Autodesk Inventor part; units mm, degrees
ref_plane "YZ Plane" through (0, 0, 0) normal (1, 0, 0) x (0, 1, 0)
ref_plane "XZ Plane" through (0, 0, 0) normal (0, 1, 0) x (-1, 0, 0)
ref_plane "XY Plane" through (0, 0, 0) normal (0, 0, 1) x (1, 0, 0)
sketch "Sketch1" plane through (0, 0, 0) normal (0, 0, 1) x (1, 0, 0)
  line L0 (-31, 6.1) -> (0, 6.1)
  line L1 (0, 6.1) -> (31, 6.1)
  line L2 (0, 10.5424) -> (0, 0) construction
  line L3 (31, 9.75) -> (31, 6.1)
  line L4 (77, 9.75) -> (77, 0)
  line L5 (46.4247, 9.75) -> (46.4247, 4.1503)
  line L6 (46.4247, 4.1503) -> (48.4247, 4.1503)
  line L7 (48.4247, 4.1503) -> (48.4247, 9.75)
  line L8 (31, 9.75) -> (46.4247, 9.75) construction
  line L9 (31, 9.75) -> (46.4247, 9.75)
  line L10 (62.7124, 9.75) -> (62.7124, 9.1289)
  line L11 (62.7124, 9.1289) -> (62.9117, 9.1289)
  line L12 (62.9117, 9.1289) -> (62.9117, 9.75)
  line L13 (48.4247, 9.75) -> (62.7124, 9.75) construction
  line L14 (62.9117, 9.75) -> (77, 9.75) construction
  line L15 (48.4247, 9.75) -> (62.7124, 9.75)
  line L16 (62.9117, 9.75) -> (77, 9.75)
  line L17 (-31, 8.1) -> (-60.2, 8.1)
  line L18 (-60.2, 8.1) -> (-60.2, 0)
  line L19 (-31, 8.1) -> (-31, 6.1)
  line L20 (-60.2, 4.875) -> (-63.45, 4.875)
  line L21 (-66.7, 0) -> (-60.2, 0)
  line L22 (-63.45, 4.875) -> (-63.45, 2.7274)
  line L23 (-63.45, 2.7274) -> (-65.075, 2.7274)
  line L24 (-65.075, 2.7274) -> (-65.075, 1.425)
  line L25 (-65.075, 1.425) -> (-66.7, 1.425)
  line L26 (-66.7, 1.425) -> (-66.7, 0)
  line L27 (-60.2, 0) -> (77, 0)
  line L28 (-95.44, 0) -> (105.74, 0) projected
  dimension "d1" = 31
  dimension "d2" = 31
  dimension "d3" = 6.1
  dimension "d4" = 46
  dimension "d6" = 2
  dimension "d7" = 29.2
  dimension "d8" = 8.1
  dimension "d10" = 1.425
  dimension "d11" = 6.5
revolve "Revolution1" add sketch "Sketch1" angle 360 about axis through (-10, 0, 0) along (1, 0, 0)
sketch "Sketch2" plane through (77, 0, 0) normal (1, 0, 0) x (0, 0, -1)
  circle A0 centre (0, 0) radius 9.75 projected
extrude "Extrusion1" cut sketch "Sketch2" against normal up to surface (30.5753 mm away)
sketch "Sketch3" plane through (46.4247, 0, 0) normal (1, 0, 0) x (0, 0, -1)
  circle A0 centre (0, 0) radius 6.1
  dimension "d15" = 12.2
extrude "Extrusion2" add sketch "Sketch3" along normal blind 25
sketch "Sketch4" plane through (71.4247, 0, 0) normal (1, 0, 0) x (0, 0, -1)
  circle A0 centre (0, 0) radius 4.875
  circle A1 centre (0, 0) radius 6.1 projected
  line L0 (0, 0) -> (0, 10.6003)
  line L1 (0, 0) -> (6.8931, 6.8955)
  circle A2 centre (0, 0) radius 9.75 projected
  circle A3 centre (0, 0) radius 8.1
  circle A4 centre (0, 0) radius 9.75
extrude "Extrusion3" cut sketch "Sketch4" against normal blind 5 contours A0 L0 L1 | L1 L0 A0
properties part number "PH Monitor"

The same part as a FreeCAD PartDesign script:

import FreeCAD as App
import Part
import Sketcher

V = App.Vector


def add_polygon(sketch, points):
    """Adds a closed chain of lines whose ends are joined by coincident constraints."""
    first, n = sketch.GeometryCount, len(points)
    for a, b in zip(points, points[1:] + points[:1]):
        sketch.addGeometry(Part.LineSegment(App.Vector(*a, 0), App.Vector(*b, 0)), False)
    for i in range(n):
        sketch.addConstraint(Sketcher.Constraint("Coincident", first + i, 2, first + (i + 1) % n, 1))

doc = App.newDocument("Part")
body = doc.addObject("PartDesign::Body", "Body")

# Sketch on XY plane
sketch1 = body.newObject("Sketcher::SketchObject", "Sketch")
sketch1.AttachmentSupport = (doc.getObject("XY_Plane"), [""])
sketch1.MapMode = "FlatFace"
add_polygon(sketch1, [(-31, 6.1), (-31, 8.1), (-60.2, 8.1), (-60.2, 4.88), (-63.45, 4.88), (-63.45, 2.73), (-65.08, 2.73), (-65.08, 1.43), (-66.7, 1.43), (-66.7, 0), (77, 0), (77, 9.75), (62.91, 9.75), (62.91, 9.13), (62.71, 9.13), (62.71, 9.75), (48.42, 9.75), (48.42, 4.15), (46.42, 4.15), (46.42, 9.75), (31, 9.75), (31, 6.1)])  # lines 0-21
sketch1.addConstraint([
    Sketcher.Constraint("Vertical", 0),
    Sketcher.Constraint("Horizontal", 1),
    Sketcher.Constraint("Vertical", 2),
    Sketcher.Constraint("Horizontal", 3),
    Sketcher.Constraint("Vertical", 4),
    Sketcher.Constraint("Horizontal", 5),
    Sketcher.Constraint("Vertical", 6),
    Sketcher.Constraint("Horizontal", 7),
    Sketcher.Constraint("Vertical", 8),
    Sketcher.Constraint("Horizontal", 9),
    Sketcher.Constraint("Vertical", 10),
    Sketcher.Constraint("Horizontal", 11),
    Sketcher.Constraint("Vertical", 12),
    Sketcher.Constraint("Horizontal", 13),
    Sketcher.Constraint("Vertical", 14),
    Sketcher.Constraint("Horizontal", 15),
    Sketcher.Constraint("Vertical", 16),
    Sketcher.Constraint("Horizontal", 17),
    Sketcher.Constraint("Vertical", 18),
    Sketcher.Constraint("Horizontal", 19),
    Sketcher.Constraint("Vertical", 20),
    Sketcher.Constraint("Horizontal", 21),
    Sketcher.Constraint("PointOnObject", 8, 2, -1),
    Sketcher.Constraint("Horizontal", 11, 2, 14, 2),
    Sketcher.Constraint("Horizontal", 15, 2, 18, 2),
    Sketcher.Constraint("Equal", 5, 7),
    Sketcher.Constraint("Equal", 17, 0),
    Sketcher.Constraint("DistanceX", 17, 2, 17, 1, 2.0),
    Sketcher.Constraint("DistanceX", 1, 2, 1, 1, 29.2),
    Sketcher.Constraint("DistanceX", 0, 2, -1, 1, 31.0),
    Sketcher.Constraint("DistanceX", -1, 1, 19, 2, 31.0),
    Sketcher.Constraint("DistanceY", -1, 1, 0, 2, 8.1),
    Sketcher.Constraint("DistanceX", 7, 2, 2, 2, 6.5),
    Sketcher.Constraint("DistanceY", 8, 2, 8, 1, 1.425),
    Sketcher.Constraint("DistanceX", 9, 1, 9, 2, 143.7),
    Sketcher.Constraint("DistanceX", 3, 2, 3, 1, 3.25),
    Sketcher.Constraint("DistanceY", 10, 1, 10, 2, 9.75),
    Sketcher.Constraint("DistanceY", 2, 2, 2, 1, 3.225),
    Sketcher.Constraint("DistanceY", 12, 2, 12, 1, 0.621),
    Sketcher.Constraint("DistanceX", 11, 2, 11, 1, 14.0883),
    Sketcher.Constraint("DistanceX", 13, 2, 13, 1, 0.1993),
    Sketcher.Constraint("DistanceX", 15, 2, 15, 1, 14.2877),
    Sketcher.Constraint("DistanceY", 4, 2, 4, 1, 2.1476),
    Sketcher.Constraint("DistanceY", 16, 2, 16, 1, 5.5997),
])
revolution = body.newObject("PartDesign::Revolution", "Revolution")
revolution.Profile = sketch1
revolution.ReferenceAxis = (sketch1, ["H_Axis"])
revolution.Angle = 360

# Sketch on YZ plane
sketch2 = body.newObject("Sketcher::SketchObject", "Sketch001")
sketch2.AttachmentSupport = (doc.getObject("YZ_Plane"), [""])
sketch2.MapMode = "FlatFace"
sketch2.AttachmentOffset = App.Placement(V(0, 0, 77), App.Rotation())
sketch2.addGeometry(Part.Circle(V(0, 0, 0), V(0, 0, 1), 10), False)
sketch2.addConstraint([
    Sketcher.Constraint("Coincident", 0, 3, -1, 1),
    Sketcher.Constraint("Diameter", 0, 19.5),
])
pocket1 = body.newObject("PartDesign::Pocket", "Pocket")
pocket1.Profile = sketch2
pocket1.Length = 30.5753

# Sketch on YZ plane
sketch3 = body.newObject("Sketcher::SketchObject", "Sketch002")
sketch3.AttachmentSupport = (doc.getObject("YZ_Plane"), [""])
sketch3.MapMode = "FlatFace"
sketch3.AttachmentOffset = App.Placement(V(0, 0, 46.4247), App.Rotation())
sketch3.addGeometry(Part.Circle(V(0, 0, 0), V(0, 0, 1), 6), False)
sketch3.addConstraint([
    Sketcher.Constraint("Coincident", 0, 3, -1, 1),
    Sketcher.Constraint("Diameter", 0, 12.2),
])
pad1 = body.newObject("PartDesign::Pad", "Pad")
pad1.Profile = sketch3
pad1.Length = 25

# Sketch on YZ plane
sketch4 = body.newObject("Sketcher::SketchObject", "Sketch003")
sketch4.AttachmentSupport = (doc.getObject("YZ_Plane"), [""])
sketch4.MapMode = "FlatFace"
sketch4.AttachmentOffset = App.Placement(V(0, 0, 71.4247), App.Rotation())
sketch4.addGeometry(Part.Circle(V(0, 0, 0), V(0, 0, 1), 4.9), False)
sketch4.addConstraint([
    Sketcher.Constraint("Coincident", 0, 3, -1, 1),
    Sketcher.Constraint("Diameter", 0, 9.75),
])
pocket2 = body.newObject("PartDesign::Pocket", "Pocket001")
pocket2.Profile = sketch4
pocket2.Length = 5

doc.recompute()
